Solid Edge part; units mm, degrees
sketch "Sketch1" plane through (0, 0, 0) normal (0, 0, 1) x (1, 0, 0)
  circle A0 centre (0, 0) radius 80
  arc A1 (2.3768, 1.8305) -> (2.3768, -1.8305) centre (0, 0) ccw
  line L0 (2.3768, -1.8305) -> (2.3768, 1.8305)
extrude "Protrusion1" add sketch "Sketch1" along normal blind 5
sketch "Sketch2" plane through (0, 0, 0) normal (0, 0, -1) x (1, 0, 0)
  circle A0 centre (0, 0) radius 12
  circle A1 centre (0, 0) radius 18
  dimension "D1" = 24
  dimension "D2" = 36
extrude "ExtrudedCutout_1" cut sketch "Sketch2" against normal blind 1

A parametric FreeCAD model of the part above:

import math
import FreeCAD as App
import Part
import Sketcher
from FreeCAD import Vector
Q = App.Units.Quantity

doc = App.newDocument("Part")
params = doc.addObject("Spreadsheet::Sheet", "Params")
for row, (alias, value) in enumerate([
    ("sketch1_diameter", "160 mm"),
    ("sketch1_radius", "3 mm"),
    ("pad1_length", "5 mm"),
    ("sketch2_diameter", "36 mm"),
    ("sketch2_diameter2", "24 mm"),
    ("pocket1_length", "1 mm"),
], start=1):
    params.set(f"A{row}", alias)
    params.set(f"B{row}", "=" + value)
    params.setAlias(f"B{row}", alias)

body = doc.addObject("PartDesign::Body", "Body")

# Sketch on XY plane
sketch1 = body.newObject("Sketcher::SketchObject", "Sketch")
sketch1.AttachmentSupport = (doc.getObject("XY_Plane"), [""])
sketch1.MapMode = "FlatFace"
sketch1.addGeometry(Part.Circle(Vector(0, 0, 0), Vector(0, 0, 1), 80), False)
sketch1.addGeometry(Part.ArcOfCircle(Part.Circle(Vector(0, 0, 0), Vector(0, 0, 1), 3), math.radians(38), math.radians(322)), False)
sketch1.addGeometry(Part.LineSegment(Vector(2.4, 1.8, 0), Vector(2.4, -1.8, 0)), False)
sketch1.addConstraint(Sketcher.Constraint("Coincident", 1, 1, 2, 1))
sketch1.addConstraint(Sketcher.Constraint("Coincident", 2, 2, 1, 2))
sketch1.addConstraint(Sketcher.Constraint("Vertical", 2))
sketch1.addConstraint(Sketcher.Constraint("Coincident", 0, 3, -1, 1))
sketch1.addConstraint(Sketcher.Constraint("Coincident", 1, 3, -1, 1))
sketch1.addConstraint(Sketcher.Constraint("Diameter", 0, Q("160 mm")))
sketch1.addConstraint(Sketcher.Constraint("Radius", 1, Q("3 mm")))
sketch1.addConstraint(Sketcher.Constraint("DistanceY", 2, 2, 2, 1, Q("3.661 mm")))
sketch1.setExpression("Constraints[5]", "Params.sketch1_diameter")
sketch1.setExpression("Constraints[6]", "Params.sketch1_radius")
pad1 = body.newObject("PartDesign::Pad", "Pad")
pad1.Profile = sketch1
pad1.setExpression("Length", "Params.pad1_length")

# Sketch on XY plane
sketch2 = body.newObject("Sketcher::SketchObject", "Sketch001")
sketch2.AttachmentSupport = (doc.getObject("XY_Plane"), [""])
sketch2.MapMode = "FlatFace"
sketch2.addGeometry(Part.Circle(Vector(0, 0, 0), Vector(0, 0, 1), 18), False)
sketch2.addGeometry(Part.Circle(Vector(0, 0, 0), Vector(0, 0, 1), 12), False)
sketch2.addConstraint(Sketcher.Constraint("Coincident", 0, 3, -1, 1))
sketch2.addConstraint(Sketcher.Constraint("Coincident", 1, 3, -1, 1))
sketch2.addConstraint(Sketcher.Constraint("Diameter", 0, Q("36 mm")))
sketch2.addConstraint(Sketcher.Constraint("Diameter", 1, Q("24 mm")))
sketch2.setExpression("Constraints[2]", "Params.sketch2_diameter")
sketch2.setExpression("Constraints[3]", "Params.sketch2_diameter2")
pocket1 = body.newObject("PartDesign::Pocket", "Pocket")
pocket1.Profile = sketch2
pocket1.setExpression("Length", "Params.pocket1_length")
pocket1.Reversed = True

doc.recompute()
